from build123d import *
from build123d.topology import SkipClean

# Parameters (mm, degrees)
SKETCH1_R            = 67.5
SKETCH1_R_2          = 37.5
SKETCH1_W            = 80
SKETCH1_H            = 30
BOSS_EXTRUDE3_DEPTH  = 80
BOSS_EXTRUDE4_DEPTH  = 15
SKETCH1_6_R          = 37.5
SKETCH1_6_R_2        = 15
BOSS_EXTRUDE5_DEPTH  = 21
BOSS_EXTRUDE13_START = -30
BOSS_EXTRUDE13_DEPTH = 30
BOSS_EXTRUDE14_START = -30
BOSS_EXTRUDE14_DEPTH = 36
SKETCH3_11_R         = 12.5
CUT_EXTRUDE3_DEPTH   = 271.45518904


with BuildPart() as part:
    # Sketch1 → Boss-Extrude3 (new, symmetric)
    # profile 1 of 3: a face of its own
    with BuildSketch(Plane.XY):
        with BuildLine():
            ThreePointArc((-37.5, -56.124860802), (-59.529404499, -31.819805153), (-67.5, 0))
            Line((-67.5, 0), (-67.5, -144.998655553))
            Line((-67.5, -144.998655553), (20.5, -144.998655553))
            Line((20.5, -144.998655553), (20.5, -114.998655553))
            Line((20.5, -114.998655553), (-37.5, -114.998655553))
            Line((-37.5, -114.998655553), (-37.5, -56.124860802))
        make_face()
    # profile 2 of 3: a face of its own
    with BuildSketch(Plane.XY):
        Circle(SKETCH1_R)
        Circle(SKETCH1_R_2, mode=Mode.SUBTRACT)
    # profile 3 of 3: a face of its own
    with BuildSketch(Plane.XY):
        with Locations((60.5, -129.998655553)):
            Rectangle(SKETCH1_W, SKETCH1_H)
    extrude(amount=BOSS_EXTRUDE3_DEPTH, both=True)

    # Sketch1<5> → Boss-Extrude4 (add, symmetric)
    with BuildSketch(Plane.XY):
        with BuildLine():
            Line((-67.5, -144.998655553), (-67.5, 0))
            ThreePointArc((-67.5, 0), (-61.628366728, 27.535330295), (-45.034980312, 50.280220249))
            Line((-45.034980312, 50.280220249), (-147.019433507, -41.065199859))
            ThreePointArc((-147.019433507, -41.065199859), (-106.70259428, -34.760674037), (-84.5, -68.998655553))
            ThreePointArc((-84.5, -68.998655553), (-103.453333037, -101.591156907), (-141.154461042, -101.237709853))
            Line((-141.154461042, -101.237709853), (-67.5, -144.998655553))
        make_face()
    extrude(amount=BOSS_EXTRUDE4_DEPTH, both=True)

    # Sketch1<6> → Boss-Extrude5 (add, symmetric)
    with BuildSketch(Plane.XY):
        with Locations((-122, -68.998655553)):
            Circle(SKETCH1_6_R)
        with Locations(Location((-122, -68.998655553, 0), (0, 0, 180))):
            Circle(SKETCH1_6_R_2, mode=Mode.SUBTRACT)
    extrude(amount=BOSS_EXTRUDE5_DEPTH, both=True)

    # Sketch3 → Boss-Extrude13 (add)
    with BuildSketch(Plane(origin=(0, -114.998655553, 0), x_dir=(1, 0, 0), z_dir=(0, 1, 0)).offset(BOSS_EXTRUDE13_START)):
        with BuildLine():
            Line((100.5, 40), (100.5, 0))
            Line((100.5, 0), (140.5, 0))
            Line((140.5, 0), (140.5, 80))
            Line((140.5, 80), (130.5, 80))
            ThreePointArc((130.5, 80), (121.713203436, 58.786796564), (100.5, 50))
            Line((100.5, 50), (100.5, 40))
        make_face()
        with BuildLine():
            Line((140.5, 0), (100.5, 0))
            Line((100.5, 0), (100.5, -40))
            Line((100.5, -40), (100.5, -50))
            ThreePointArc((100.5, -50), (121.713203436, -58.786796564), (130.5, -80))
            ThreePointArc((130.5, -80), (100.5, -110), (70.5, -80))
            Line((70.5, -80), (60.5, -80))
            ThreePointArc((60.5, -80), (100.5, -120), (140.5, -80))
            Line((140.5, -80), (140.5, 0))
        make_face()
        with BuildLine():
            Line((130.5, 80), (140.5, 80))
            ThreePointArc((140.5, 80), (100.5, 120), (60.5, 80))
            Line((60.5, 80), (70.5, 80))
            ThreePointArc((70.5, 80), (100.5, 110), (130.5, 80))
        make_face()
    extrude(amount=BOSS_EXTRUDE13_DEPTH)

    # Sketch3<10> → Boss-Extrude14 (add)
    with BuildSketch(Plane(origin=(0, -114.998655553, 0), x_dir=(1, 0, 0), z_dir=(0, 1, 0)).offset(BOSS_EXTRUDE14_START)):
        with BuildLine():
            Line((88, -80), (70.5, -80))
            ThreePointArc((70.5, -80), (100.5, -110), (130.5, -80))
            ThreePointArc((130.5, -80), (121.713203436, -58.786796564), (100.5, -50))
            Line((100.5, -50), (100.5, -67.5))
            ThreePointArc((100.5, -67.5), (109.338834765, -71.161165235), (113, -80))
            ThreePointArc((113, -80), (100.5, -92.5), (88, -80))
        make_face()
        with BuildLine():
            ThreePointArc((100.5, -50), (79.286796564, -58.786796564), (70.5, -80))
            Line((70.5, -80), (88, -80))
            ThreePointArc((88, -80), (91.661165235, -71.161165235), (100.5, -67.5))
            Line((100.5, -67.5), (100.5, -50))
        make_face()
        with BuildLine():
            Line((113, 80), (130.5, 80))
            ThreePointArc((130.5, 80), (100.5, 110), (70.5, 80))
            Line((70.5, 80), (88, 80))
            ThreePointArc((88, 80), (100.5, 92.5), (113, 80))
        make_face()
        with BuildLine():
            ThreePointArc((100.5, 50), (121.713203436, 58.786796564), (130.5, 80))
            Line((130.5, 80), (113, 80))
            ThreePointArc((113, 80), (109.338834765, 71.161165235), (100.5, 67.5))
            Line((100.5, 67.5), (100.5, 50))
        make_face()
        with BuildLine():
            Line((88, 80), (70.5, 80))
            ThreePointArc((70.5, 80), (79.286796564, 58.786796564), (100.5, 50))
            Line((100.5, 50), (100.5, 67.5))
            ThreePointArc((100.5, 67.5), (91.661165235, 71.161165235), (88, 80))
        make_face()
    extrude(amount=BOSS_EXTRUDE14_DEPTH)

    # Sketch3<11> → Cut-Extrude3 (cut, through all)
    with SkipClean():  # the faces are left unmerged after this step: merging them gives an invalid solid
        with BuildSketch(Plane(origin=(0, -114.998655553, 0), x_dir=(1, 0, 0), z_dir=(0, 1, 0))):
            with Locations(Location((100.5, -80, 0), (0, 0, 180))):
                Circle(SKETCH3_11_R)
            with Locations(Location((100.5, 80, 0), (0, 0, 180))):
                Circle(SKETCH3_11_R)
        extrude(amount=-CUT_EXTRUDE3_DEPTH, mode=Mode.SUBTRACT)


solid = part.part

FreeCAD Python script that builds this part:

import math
import FreeCAD as App
import Part
import Sketcher

doc = App.newDocument("Part")
body = doc.addObject("PartDesign::Body", "Body")

sketch1 = doc.addObject("Sketcher::SketchObject", "Sketch")
body.addObject(sketch1)
sketch1.AttachmentSupport = (doc.XY_Plane, [""])
sketch1.MapMode = "FlatFace"
sketch1.addGeometry(Part.LineSegment(App.Vector(-68, 0, 0), App.Vector(-68, -145, 0)), False)
sketch1.addGeometry(Part.LineSegment(App.Vector(-68, -145, 0), App.Vector(100, -145, 0)), False)
sketch1.addGeometry(Part.LineSegment(App.Vector(100, -145, 0), App.Vector(100, -115, 0)), False)
sketch1.addGeometry(Part.LineSegment(App.Vector(100, -115, 0), App.Vector(-38, -115, 0)), False)
sketch1.addGeometry(Part.LineSegment(App.Vector(-38, -115, 0), App.Vector(-38, -56, 0)), False)
sketch1.addGeometry(Part.ArcOfCircle(Part.Circle(App.Vector(0, 0, 0), App.Vector(0, 0, 1), 68), math.radians(-124), math.radians(180)), False)
sketch1.addGeometry(Part.Circle(App.Vector(0, 0, 0), App.Vector(0, 0, 1), 38), False)
sketch1.addConstraint(Sketcher.Constraint("Coincident", 0, 2, 1, 1))
sketch1.addConstraint(Sketcher.Constraint("Coincident", 1, 2, 2, 1))
sketch1.addConstraint(Sketcher.Constraint("Coincident", 2, 2, 3, 1))
sketch1.addConstraint(Sketcher.Constraint("Coincident", 3, 2, 4, 1))
sketch1.addConstraint(Sketcher.Constraint("Coincident", 4, 2, 5, 1))
sketch1.addConstraint(Sketcher.Constraint("Tangent", 5, 2, 0, 1))
sketch1.addConstraint(Sketcher.Constraint("Vertical", 0))
sketch1.addConstraint(Sketcher.Constraint("Horizontal", 1))
sketch1.addConstraint(Sketcher.Constraint("Vertical", 2))
sketch1.addConstraint(Sketcher.Constraint("Horizontal", 3))
sketch1.addConstraint(Sketcher.Constraint("Vertical", 4))
sketch1.addConstraint(Sketcher.Constraint("Coincident", 5, 3, -1, 1))
sketch1.addConstraint(Sketcher.Constraint("Coincident", 6, 3, -1, 1))
sketch1.addConstraint(Sketcher.Constraint("Diameter", 6, 75.0))
sketch1.addConstraint(Sketcher.Constraint("Radius", 5, 67.5))
sketch1.addConstraint(Sketcher.Constraint("DistanceX", 1, 1, 1, 2, 168.0))
sketch1.addConstraint(Sketcher.Constraint("DistanceX", 3, 2, 3, 1, 138.0))
sketch1.addConstraint(Sketcher.Constraint("DistanceY", 2, 1, 2, 2, 30.0))
sketch1.addConstraint(Sketcher.Constraint("DistanceY", 0, 2, 0, 1, 144.998656))
pad1 = doc.addObject("PartDesign::Pad", "Pad")
body.addObject(pad1)
pad1.Profile = sketch1
pad1.Length = 160
pad1.Midplane = True

sketch2 = doc.addObject("Sketcher::SketchObject", "Sketch001")
body.addObject(sketch2)
sketch2.AttachmentSupport = (doc.XY_Plane, [""])
sketch2.MapMode = "FlatFace"
sketch2.addGeometry(Part.LineSegment(App.Vector(-68, -145, 0), App.Vector(-68, 0, 0)), False)
sketch2.addGeometry(Part.ArcOfCircle(Part.Circle(App.Vector(0, 0, 0), App.Vector(0, 0, 1), 67), math.radians(132), math.radians(180)), False)
sketch2.addGeometry(Part.LineSegment(App.Vector(-45, 50, 0), App.Vector(-147, -41, 0)), False)
sketch2.addGeometry(Part.ArcOfCircle(Part.Circle(App.Vector(-122, -69, 0), App.Vector(0, 0, 1), 38), math.radians(0), math.radians(132)), False)
sketch2.addGeometry(Part.ArcOfCircle(Part.Circle(App.Vector(-122, -69, 0), App.Vector(0, 0, 1), 38), math.radians(-121), math.radians(0)), False)
sketch2.addGeometry(Part.LineSegment(App.Vector(-141, -101, 0), App.Vector(-68, -145, 0)), False)
sketch2.addConstraint(Sketcher.Constraint("Tangent", 0, 2, 1, 2))
sketch2.addConstraint(Sketcher.Constraint("Tangent", 1, 1, 2, 1))
sketch2.addConstraint(Sketcher.Constraint("Tangent", 2, 2, 3, 2))
sketch2.addConstraint(Sketcher.Constraint("Tangent", 3, 1, 4, 2))
sketch2.addConstraint(Sketcher.Constraint("Tangent", 4, 1, 5, 1))
sketch2.addConstraint(Sketcher.Constraint("Coincident", 5, 2, 0, 1))
sketch2.addConstraint(Sketcher.Constraint("Vertical", 0))
sketch2.addConstraint(Sketcher.Constraint("Coincident", 1, 3, -1, 1))
sketch2.addConstraint(Sketcher.Constraint("Equal", 3, 4))
sketch2.addConstraint(Sketcher.Constraint("Horizontal", 4, 3, 3, 1))
sketch2.addConstraint(Sketcher.Constraint("Radius", 1, 67.5))
sketch2.addConstraint(Sketcher.Constraint("Radius", 3, 37.5))
sketch2.addConstraint(Sketcher.Constraint("DistanceX", 3, 3, -1, 1, 122.0))
sketch2.addConstraint(Sketcher.Constraint("DistanceY", 5, 2, 3, 1, 76.0))
sketch2.addConstraint(Sketcher.Constraint("DistanceY", 2, 2, -1, 1, 41.0652))
pad2 = doc.addObject("PartDesign::Pad", "Pad001")
body.addObject(pad2)
pad2.Profile = sketch2
pad2.Length = 30
pad2.Midplane = True

sketch3 = doc.addObject("Sketcher::SketchObject", "Sketch002")
body.addObject(sketch3)
sketch3.AttachmentSupport = (doc.XY_Plane, [""])
sketch3.MapMode = "FlatFace"
sketch3.addGeometry(Part.Circle(App.Vector(-122, -69, 0), App.Vector(0, 0, 1), 38), False)
sketch3.addGeometry(Part.Circle(App.Vector(-122, -69, 0), App.Vector(0, 0, 1), 15), False)
sketch3.addConstraint(Sketcher.Constraint("Coincident", 1, 3, 0, 3))
sketch3.addConstraint(Sketcher.Constraint("Diameter", 0, 75.0))
sketch3.addConstraint(Sketcher.Constraint("Diameter", 1, 30.0))
sketch3.addConstraint(Sketcher.Constraint("DistanceX", 0, 3, -1, 1, 122.0))
sketch3.addConstraint(Sketcher.Constraint("DistanceY", 0, 3, -1, 1, 68.998656))
pad3 = doc.addObject("PartDesign::Pad", "Pad002")
body.addObject(pad3)
pad3.Profile = sketch3
pad3.Length = 42
pad3.Midplane = True

sketch4 = doc.addObject("Sketcher::SketchObject", "Sketch003")
body.addObject(sketch4)
sketch4.AttachmentSupport = (doc.XZ_Plane, [""])
sketch4.MapMode = "FlatFace"
sketch4.AttachmentOffset = App.Placement(App.Vector(0, 0, 144.998656), App.Rotation())
sketch4.addGeometry(Part.ArcOfCircle(Part.Circle(App.Vector(101, -80, 0), App.Vector(0, 0, 1), 30), math.radians(0), math.radians(90)), False)
sketch4.addGeometry(Part.LineSegment(App.Vector(100, -50, 0), App.Vector(100, 50, 0)), False)
sketch4.addGeometry(Part.ArcOfCircle(Part.Circle(App.Vector(101, 80, 0), App.Vector(0, 0, 1), 30), math.radians(-90), math.radians(0)), False)
sketch4.addGeometry(Part.ArcOfCircle(Part.Circle(App.Vector(100, 80, 0), App.Vector(0, 0, 1), 30), math.radians(0), math.radians(180)), False)
sketch4.addGeometry(Part.LineSegment(App.Vector(70, 80, 0), App.Vector(60, 80, 0)), False)
sketch4.addGeometry(Part.ArcOfCircle(Part.Circle(App.Vector(100, 80, 0), App.Vector(0, 0, 1), 40), math.radians(0), math.radians(180)), False)
sketch4.addGeometry(Part.LineSegment(App.Vector(140, 80, 0), App.Vector(140, -80, 0)), False)
sketch4.addGeometry(Part.ArcOfCircle(Part.Circle(App.Vector(100, -80, 0), App.Vector(0, 0, 1), 40), math.radians(180), math.radians(360)), False)
sketch4.addGeometry(Part.LineSegment(App.Vector(60, -80, 0), App.Vector(70, -80, 0)), False)
sketch4.addGeometry(Part.ArcOfCircle(Part.Circle(App.Vector(100, -80, 0), App.Vector(0, 0, 1), 30), math.radians(180), math.radians(360)), False)
sketch4.addConstraint(Sketcher.Constraint("Coincident", 0, 2, 1, 1))
sketch4.addConstraint(Sketcher.Constraint("Coincident", 1, 2, 2, 1))
sketch4.addConstraint(Sketcher.Constraint("Tangent", 2, 2, 3, 1))
sketch4.addConstraint(Sketcher.Constraint("Coincident", 3, 2, 4, 1))
sketch4.addConstraint(Sketcher.Constraint("Coincident", 4, 2, 5, 2))
sketch4.addConstraint(Sketcher.Constraint("Tangent", 5, 1, 6, 1))
sketch4.addConstraint(Sketcher.Constraint("Tangent", 6, 2, 7, 2))
sketch4.addConstraint(Sketcher.Constraint("Coincident", 7, 1, 8, 1))
sketch4.addConstraint(Sketcher.Constraint("Coincident", 8, 2, 9, 1))
sketch4.addConstraint(Sketcher.Constraint("Tangent", 9, 2, 0, 1))
sketch4.addConstraint(Sketcher.Constraint("Vertical", 1))
sketch4.addConstraint(Sketcher.Constraint("Horizontal", 4))
sketch4.addConstraint(Sketcher.Constraint("Vertical", 6))
sketch4.addConstraint(Sketcher.Constraint("Horizontal", 8))
sketch4.addConstraint(Sketcher.Constraint("Coincident", 5, 3, 2, 3))
sketch4.addConstraint(Sketcher.Constraint("Coincident", 7, 3, 0, 3))
sketch4.addConstraint(Sketcher.Constraint("Equal", 0, 2))
sketch4.addConstraint(Sketcher.Constraint("Equal", 2, 3))
sketch4.addConstraint(Sketcher.Constraint("Equal", 5, 7))
sketch4.addConstraint(Sketcher.Constraint("Equal", 3, 9))
sketch4.addConstraint(Sketcher.Constraint("Horizontal", 5, 3, 2, 2))
sketch4.addConstraint(Sketcher.Constraint("Horizontal", 2, 2, 3, 2))
sketch4.addConstraint(Sketcher.Constraint("Horizontal", 6, 2, 7, 1))
sketch4.addConstraint(Sketcher.Constraint("Horizontal", 8, 2, 9, 2))
sketch4.addConstraint(Sketcher.Constraint("Vertical", 9, 3, 0, 2))
sketch4.addConstraint(Sketcher.Constraint("Radius", 0, 30.0))
sketch4.addConstraint(Sketcher.Constraint("Radius", 5, 40.0))
sketch4.addConstraint(Sketcher.Constraint("DistanceY", 1, 1, 1, 2, 100.0))
sketch4.addConstraint(Sketcher.Constraint("DistanceY", 0, 3, -1, 1, 80.0))
sketch4.addConstraint(Sketcher.Constraint("DistanceX", -1, 1, 0, 3, 100.5))
pad4 = doc.addObject("PartDesign::Pad", "Pad003")
body.addObject(pad4)
pad4.Profile = sketch4
pad4.Length = 30
pad4.Reversed = True

sketch5 = doc.addObject("Sketcher::SketchObject", "Sketch004")
body.addObject(sketch5)
sketch5.AttachmentSupport = (doc.XZ_Plane, [""])
sketch5.MapMode = "FlatFace"
sketch5.AttachmentOffset = App.Placement(App.Vector(0, 0, 144.998656), App.Rotation())
sketch5.addGeometry(Part.ArcOfCircle(Part.Circle(App.Vector(101, 80, 0), App.Vector(0, 0, 1), 30), math.radians(-90), math.radians(0)), False)
sketch5.addGeometry(Part.ArcOfCircle(Part.Circle(App.Vector(100, 80, 0), App.Vector(0, 0, 1), 30), math.radians(180), math.radians(270)), False)
sketch5.addGeometry(Part.ArcOfCircle(Part.Circle(App.Vector(100, 80, 0), App.Vector(0, 0, 1), 30), math.radians(0), math.radians(180)), False)
sketch5.addGeometry(Part.ArcOfCircle(Part.Circle(App.Vector(101, 80, 0), App.Vector(0, 0, 1), 12), math.radians(-90), math.radians(0)), False)
sketch5.addGeometry(Part.ArcOfCircle(Part.Circle(App.Vector(100, 80, 0), App.Vector(0, 0, 1), 12), math.radians(0), math.radians(180)), False)
sketch5.addGeometry(Part.ArcOfCircle(Part.Circle(App.Vector(100, 80, 0), App.Vector(0, 0, 1), 12), math.radians(180), math.radians(270)), False)
sketch5.addGeometry(Part.ArcOfCircle(Part.Circle(App.Vector(100, -80, 0), App.Vector(0, 0, 1), 30), math.radians(180), math.radians(360)), False)
sketch5.addGeometry(Part.ArcOfCircle(Part.Circle(App.Vector(100, -80, 0), App.Vector(0, 0, 1), 30), math.radians(90), math.radians(180)), False)
sketch5.addGeometry(Part.ArcOfCircle(Part.Circle(App.Vector(101, -80, 0), App.Vector(0, 0, 1), 30), math.radians(0), math.radians(90)), False)
sketch5.addGeometry(Part.ArcOfCircle(Part.Circle(App.Vector(100, -80, 0), App.Vector(0, 0, 1), 12), math.radians(180), math.radians(360)), False)
sketch5.addGeometry(Part.ArcOfCircle(Part.Circle(App.Vector(101, -80, 0), App.Vector(0, 0, 1), 12), math.radians(0), math.radians(90)), False)
sketch5.addGeometry(Part.ArcOfCircle(Part.Circle(App.Vector(100, -80, 0), App.Vector(0, 0, 1), 12), math.radians(90), math.radians(180)), False)
sketch5.addConstraint(Sketcher.Constraint("Tangent", 0, 1, 1, 2))
sketch5.addConstraint(Sketcher.Constraint("Tangent", 1, 1, 2, 2))
sketch5.addConstraint(Sketcher.Constraint("Tangent", 2, 1, 0, 2))
sketch5.addConstraint(Sketcher.Constraint("Tangent", 3, 2, 4, 1))
sketch5.addConstraint(Sketcher.Constraint("Tangent", 4, 2, 5, 1))
sketch5.addConstraint(Sketcher.Constraint("Tangent", 5, 2, 3, 1))
sketch5.addConstraint(Sketcher.Constraint("Tangent", 6, 1, 7, 2))
sketch5.addConstraint(Sketcher.Constraint("Tangent", 7, 1, 8, 2))
sketch5.addConstraint(Sketcher.Constraint("Tangent", 8, 1, 6, 2))
sketch5.addConstraint(Sketcher.Constraint("Tangent", 9, 2, 10, 1))
sketch5.addConstraint(Sketcher.Constraint("Tangent", 10, 2, 11, 1))
sketch5.addConstraint(Sketcher.Constraint("Tangent", 11, 2, 9, 1))
sketch5.addConstraint(Sketcher.Constraint("Coincident", 3, 3, 0, 3))
sketch5.addConstraint(Sketcher.Constraint("Coincident", 9, 3, 6, 3))
sketch5.addConstraint(Sketcher.Constraint("Equal", 2, 6))
sketch5.addConstraint(Sketcher.Constraint("Equal", 5, 9))
sketch5.addConstraint(Sketcher.Constraint("Symmetric", 0, 3, 6, 3, -1))
sketch5.addConstraint(Sketcher.Constraint("Horizontal", 5, 3, 1, 1))
sketch5.addConstraint(Sketcher.Constraint("Horizontal", 1, 1, 2, 1))
sketch5.addConstraint(Sketcher.Constraint("Horizontal", 2, 1, 3, 2))
sketch5.addConstraint(Sketcher.Constraint("Horizontal", 3, 2, 4, 2))
sketch5.addConstraint(Sketcher.Constraint("Horizontal", 11, 3, 6, 1))
sketch5.addConstraint(Sketcher.Constraint("Horizontal", 6, 1, 8, 1))
sketch5.addConstraint(Sketcher.Constraint("Horizontal", 8, 1, 9, 2))
sketch5.addConstraint(Sketcher.Constraint("Horizontal", 9, 2, 11, 2))
sketch5.addConstraint(Sketcher.Constraint("Vertical", 11, 3, 0, 1))
sketch5.addConstraint(Sketcher.Constraint("Vertical", 0, 1, 5, 2))
sketch5.addConstraint(Sketcher.Constraint("Vertical", 5, 2, 7, 1))
sketch5.addConstraint(Sketcher.Constraint("Vertical", 7, 1, 10, 2))
sketch5.addConstraint(Sketcher.Constraint("Radius", 0, 30.0))
sketch5.addConstraint(Sketcher.Constraint("Radius", 3, 12.5))
sketch5.addConstraint(Sketcher.Constraint("DistanceY", -1, 1, 0, 3, 80.0))
sketch5.addConstraint(Sketcher.Constraint("DistanceX", -1, 1, 3, 2, 113.0))
pad5 = doc.addObject("PartDesign::Pad", "Pad004")
body.addObject(pad5)
pad5.Profile = sketch5
pad5.Length = 36
pad5.Reversed = True

sketch6 = doc.addObject("Sketcher::SketchObject", "Sketch005")
body.addObject(sketch6)
sketch6.AttachmentSupport = (doc.XZ_Plane, [""])
sketch6.MapMode = "FlatFace"
sketch6.AttachmentOffset = App.Placement(App.Vector(0, 0, 114.998656), App.Rotation())
sketch6.addGeometry(Part.Circle(App.Vector(100, 80, 0), App.Vector(0, 0, 1), 12), False)
sketch6.addGeometry(Part.Circle(App.Vector(100, -80, 0), App.Vector(0, 0, 1), 12), False)
sketch6.addConstraint(Sketcher.Constraint("Equal", 0, 1))
sketch6.addConstraint(Sketcher.Constraint("Symmetric", 0, 3, 1, 3, -1))
sketch6.addConstraint(Sketcher.Constraint("Diameter", 0, 25.0))
sketch6.addConstraint(Sketcher.Constraint("DistanceY", -1, 1, 0, 3, 80.0))
sketch6.addConstraint(Sketcher.Constraint("DistanceX", -1, 1, 0, 3, 100.5))
pocket1 = doc.addObject("PartDesign::Pocket", "Pocket")
body.addObject(pocket1)
pocket1.Profile = sketch6
pocket1.Type = "ThroughAll"
pocket1.Reversed = True

doc.recompute()
